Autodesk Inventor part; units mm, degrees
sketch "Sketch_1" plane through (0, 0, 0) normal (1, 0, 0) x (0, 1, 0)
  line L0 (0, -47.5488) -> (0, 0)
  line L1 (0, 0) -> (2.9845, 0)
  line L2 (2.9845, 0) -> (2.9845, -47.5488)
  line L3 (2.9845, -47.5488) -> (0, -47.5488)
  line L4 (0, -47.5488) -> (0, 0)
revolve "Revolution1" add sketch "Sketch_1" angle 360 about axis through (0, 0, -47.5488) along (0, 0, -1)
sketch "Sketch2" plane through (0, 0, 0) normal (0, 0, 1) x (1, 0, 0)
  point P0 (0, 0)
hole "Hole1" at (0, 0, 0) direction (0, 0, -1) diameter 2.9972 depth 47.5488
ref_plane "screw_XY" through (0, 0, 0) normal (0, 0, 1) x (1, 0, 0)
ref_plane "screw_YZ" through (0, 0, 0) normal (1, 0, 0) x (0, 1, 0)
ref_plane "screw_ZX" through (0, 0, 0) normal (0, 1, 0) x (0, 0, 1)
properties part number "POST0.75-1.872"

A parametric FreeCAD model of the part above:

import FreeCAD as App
import Part
import Sketcher
Q = App.Units.Quantity

doc = App.newDocument("Part")
body = doc.addObject("PartDesign::Body", "Body")

# Sketch on YZ plane
sketch1 = body.newObject("Sketcher::SketchObject", "Sketch")
sketch1.AttachmentSupport = (doc.getObject("YZ_Plane"), [""])
sketch1.MapMode = "FlatFace"
sketch1.addGeometry(Part.LineSegment(App.Vector(0, 0, 0), App.Vector(0, -47.5, 0)), False)
sketch1.addGeometry(Part.LineSegment(App.Vector(0, -47.5, 0), App.Vector(3, -47.5, 0)), False)
sketch1.addGeometry(Part.LineSegment(App.Vector(3, -47.5, 0), App.Vector(3, 0, 0)), False)
sketch1.addGeometry(Part.LineSegment(App.Vector(3, 0, 0), App.Vector(0, 0, 0)), False)
sketch1.addConstraint(Sketcher.Constraint("Coincident", 0, 2, 1, 1))
sketch1.addConstraint(Sketcher.Constraint("Coincident", 1, 2, 2, 1))
sketch1.addConstraint(Sketcher.Constraint("Coincident", 2, 2, 3, 1))
sketch1.addConstraint(Sketcher.Constraint("Coincident", 3, 2, 0, 1))
sketch1.addConstraint(Sketcher.Constraint("Vertical", 0))
sketch1.addConstraint(Sketcher.Constraint("Horizontal", 1))
sketch1.addConstraint(Sketcher.Constraint("Vertical", 2))
sketch1.addConstraint(Sketcher.Constraint("Horizontal", 3))
sketch1.addConstraint(Sketcher.Constraint("Coincident", 3, 2, -1, 1))
sketch1.addConstraint(Sketcher.Constraint("DistanceY", 0, 2, 0, 1, Q("1.872 in")))
sketch1.addConstraint(Sketcher.Constraint("DistanceX", 1, 1, 1, 2, Q("0.1175 in")))
revolution = body.newObject("PartDesign::Revolution", "Revolution")
revolution.Profile = sketch1
revolution.ReferenceAxis = (sketch1, ["V_Axis"])
revolution.Angle = 360

# Sketch on XY plane
sketch2 = body.newObject("Sketcher::SketchObject", "Sketch001")
sketch2.AttachmentSupport = (doc.getObject("XY_Plane"), [""])
sketch2.MapMode = "FlatFace"
sketch2.addGeometry(Part.Circle(App.Vector(0, 0, 0), App.Vector(0, 0, 1), 1.5), False)
sketch2.addConstraint(Sketcher.Constraint("Coincident", 0, 3, -1, 1))
sketch2.addConstraint(Sketcher.Constraint("Diameter", 0, Q("0.118 in")))
doc.recompute()
hole = body.newObject("PartDesign::Hole", "Hole")
hole.Profile = sketch2
hole.ThreadType = "None"
hole.Diameter = Q("0.118 in")
hole.DepthType = "Dimension"
hole.Depth = Q("1.872 in")
hole.DrillPoint = "Flat"

doc.recompute()
